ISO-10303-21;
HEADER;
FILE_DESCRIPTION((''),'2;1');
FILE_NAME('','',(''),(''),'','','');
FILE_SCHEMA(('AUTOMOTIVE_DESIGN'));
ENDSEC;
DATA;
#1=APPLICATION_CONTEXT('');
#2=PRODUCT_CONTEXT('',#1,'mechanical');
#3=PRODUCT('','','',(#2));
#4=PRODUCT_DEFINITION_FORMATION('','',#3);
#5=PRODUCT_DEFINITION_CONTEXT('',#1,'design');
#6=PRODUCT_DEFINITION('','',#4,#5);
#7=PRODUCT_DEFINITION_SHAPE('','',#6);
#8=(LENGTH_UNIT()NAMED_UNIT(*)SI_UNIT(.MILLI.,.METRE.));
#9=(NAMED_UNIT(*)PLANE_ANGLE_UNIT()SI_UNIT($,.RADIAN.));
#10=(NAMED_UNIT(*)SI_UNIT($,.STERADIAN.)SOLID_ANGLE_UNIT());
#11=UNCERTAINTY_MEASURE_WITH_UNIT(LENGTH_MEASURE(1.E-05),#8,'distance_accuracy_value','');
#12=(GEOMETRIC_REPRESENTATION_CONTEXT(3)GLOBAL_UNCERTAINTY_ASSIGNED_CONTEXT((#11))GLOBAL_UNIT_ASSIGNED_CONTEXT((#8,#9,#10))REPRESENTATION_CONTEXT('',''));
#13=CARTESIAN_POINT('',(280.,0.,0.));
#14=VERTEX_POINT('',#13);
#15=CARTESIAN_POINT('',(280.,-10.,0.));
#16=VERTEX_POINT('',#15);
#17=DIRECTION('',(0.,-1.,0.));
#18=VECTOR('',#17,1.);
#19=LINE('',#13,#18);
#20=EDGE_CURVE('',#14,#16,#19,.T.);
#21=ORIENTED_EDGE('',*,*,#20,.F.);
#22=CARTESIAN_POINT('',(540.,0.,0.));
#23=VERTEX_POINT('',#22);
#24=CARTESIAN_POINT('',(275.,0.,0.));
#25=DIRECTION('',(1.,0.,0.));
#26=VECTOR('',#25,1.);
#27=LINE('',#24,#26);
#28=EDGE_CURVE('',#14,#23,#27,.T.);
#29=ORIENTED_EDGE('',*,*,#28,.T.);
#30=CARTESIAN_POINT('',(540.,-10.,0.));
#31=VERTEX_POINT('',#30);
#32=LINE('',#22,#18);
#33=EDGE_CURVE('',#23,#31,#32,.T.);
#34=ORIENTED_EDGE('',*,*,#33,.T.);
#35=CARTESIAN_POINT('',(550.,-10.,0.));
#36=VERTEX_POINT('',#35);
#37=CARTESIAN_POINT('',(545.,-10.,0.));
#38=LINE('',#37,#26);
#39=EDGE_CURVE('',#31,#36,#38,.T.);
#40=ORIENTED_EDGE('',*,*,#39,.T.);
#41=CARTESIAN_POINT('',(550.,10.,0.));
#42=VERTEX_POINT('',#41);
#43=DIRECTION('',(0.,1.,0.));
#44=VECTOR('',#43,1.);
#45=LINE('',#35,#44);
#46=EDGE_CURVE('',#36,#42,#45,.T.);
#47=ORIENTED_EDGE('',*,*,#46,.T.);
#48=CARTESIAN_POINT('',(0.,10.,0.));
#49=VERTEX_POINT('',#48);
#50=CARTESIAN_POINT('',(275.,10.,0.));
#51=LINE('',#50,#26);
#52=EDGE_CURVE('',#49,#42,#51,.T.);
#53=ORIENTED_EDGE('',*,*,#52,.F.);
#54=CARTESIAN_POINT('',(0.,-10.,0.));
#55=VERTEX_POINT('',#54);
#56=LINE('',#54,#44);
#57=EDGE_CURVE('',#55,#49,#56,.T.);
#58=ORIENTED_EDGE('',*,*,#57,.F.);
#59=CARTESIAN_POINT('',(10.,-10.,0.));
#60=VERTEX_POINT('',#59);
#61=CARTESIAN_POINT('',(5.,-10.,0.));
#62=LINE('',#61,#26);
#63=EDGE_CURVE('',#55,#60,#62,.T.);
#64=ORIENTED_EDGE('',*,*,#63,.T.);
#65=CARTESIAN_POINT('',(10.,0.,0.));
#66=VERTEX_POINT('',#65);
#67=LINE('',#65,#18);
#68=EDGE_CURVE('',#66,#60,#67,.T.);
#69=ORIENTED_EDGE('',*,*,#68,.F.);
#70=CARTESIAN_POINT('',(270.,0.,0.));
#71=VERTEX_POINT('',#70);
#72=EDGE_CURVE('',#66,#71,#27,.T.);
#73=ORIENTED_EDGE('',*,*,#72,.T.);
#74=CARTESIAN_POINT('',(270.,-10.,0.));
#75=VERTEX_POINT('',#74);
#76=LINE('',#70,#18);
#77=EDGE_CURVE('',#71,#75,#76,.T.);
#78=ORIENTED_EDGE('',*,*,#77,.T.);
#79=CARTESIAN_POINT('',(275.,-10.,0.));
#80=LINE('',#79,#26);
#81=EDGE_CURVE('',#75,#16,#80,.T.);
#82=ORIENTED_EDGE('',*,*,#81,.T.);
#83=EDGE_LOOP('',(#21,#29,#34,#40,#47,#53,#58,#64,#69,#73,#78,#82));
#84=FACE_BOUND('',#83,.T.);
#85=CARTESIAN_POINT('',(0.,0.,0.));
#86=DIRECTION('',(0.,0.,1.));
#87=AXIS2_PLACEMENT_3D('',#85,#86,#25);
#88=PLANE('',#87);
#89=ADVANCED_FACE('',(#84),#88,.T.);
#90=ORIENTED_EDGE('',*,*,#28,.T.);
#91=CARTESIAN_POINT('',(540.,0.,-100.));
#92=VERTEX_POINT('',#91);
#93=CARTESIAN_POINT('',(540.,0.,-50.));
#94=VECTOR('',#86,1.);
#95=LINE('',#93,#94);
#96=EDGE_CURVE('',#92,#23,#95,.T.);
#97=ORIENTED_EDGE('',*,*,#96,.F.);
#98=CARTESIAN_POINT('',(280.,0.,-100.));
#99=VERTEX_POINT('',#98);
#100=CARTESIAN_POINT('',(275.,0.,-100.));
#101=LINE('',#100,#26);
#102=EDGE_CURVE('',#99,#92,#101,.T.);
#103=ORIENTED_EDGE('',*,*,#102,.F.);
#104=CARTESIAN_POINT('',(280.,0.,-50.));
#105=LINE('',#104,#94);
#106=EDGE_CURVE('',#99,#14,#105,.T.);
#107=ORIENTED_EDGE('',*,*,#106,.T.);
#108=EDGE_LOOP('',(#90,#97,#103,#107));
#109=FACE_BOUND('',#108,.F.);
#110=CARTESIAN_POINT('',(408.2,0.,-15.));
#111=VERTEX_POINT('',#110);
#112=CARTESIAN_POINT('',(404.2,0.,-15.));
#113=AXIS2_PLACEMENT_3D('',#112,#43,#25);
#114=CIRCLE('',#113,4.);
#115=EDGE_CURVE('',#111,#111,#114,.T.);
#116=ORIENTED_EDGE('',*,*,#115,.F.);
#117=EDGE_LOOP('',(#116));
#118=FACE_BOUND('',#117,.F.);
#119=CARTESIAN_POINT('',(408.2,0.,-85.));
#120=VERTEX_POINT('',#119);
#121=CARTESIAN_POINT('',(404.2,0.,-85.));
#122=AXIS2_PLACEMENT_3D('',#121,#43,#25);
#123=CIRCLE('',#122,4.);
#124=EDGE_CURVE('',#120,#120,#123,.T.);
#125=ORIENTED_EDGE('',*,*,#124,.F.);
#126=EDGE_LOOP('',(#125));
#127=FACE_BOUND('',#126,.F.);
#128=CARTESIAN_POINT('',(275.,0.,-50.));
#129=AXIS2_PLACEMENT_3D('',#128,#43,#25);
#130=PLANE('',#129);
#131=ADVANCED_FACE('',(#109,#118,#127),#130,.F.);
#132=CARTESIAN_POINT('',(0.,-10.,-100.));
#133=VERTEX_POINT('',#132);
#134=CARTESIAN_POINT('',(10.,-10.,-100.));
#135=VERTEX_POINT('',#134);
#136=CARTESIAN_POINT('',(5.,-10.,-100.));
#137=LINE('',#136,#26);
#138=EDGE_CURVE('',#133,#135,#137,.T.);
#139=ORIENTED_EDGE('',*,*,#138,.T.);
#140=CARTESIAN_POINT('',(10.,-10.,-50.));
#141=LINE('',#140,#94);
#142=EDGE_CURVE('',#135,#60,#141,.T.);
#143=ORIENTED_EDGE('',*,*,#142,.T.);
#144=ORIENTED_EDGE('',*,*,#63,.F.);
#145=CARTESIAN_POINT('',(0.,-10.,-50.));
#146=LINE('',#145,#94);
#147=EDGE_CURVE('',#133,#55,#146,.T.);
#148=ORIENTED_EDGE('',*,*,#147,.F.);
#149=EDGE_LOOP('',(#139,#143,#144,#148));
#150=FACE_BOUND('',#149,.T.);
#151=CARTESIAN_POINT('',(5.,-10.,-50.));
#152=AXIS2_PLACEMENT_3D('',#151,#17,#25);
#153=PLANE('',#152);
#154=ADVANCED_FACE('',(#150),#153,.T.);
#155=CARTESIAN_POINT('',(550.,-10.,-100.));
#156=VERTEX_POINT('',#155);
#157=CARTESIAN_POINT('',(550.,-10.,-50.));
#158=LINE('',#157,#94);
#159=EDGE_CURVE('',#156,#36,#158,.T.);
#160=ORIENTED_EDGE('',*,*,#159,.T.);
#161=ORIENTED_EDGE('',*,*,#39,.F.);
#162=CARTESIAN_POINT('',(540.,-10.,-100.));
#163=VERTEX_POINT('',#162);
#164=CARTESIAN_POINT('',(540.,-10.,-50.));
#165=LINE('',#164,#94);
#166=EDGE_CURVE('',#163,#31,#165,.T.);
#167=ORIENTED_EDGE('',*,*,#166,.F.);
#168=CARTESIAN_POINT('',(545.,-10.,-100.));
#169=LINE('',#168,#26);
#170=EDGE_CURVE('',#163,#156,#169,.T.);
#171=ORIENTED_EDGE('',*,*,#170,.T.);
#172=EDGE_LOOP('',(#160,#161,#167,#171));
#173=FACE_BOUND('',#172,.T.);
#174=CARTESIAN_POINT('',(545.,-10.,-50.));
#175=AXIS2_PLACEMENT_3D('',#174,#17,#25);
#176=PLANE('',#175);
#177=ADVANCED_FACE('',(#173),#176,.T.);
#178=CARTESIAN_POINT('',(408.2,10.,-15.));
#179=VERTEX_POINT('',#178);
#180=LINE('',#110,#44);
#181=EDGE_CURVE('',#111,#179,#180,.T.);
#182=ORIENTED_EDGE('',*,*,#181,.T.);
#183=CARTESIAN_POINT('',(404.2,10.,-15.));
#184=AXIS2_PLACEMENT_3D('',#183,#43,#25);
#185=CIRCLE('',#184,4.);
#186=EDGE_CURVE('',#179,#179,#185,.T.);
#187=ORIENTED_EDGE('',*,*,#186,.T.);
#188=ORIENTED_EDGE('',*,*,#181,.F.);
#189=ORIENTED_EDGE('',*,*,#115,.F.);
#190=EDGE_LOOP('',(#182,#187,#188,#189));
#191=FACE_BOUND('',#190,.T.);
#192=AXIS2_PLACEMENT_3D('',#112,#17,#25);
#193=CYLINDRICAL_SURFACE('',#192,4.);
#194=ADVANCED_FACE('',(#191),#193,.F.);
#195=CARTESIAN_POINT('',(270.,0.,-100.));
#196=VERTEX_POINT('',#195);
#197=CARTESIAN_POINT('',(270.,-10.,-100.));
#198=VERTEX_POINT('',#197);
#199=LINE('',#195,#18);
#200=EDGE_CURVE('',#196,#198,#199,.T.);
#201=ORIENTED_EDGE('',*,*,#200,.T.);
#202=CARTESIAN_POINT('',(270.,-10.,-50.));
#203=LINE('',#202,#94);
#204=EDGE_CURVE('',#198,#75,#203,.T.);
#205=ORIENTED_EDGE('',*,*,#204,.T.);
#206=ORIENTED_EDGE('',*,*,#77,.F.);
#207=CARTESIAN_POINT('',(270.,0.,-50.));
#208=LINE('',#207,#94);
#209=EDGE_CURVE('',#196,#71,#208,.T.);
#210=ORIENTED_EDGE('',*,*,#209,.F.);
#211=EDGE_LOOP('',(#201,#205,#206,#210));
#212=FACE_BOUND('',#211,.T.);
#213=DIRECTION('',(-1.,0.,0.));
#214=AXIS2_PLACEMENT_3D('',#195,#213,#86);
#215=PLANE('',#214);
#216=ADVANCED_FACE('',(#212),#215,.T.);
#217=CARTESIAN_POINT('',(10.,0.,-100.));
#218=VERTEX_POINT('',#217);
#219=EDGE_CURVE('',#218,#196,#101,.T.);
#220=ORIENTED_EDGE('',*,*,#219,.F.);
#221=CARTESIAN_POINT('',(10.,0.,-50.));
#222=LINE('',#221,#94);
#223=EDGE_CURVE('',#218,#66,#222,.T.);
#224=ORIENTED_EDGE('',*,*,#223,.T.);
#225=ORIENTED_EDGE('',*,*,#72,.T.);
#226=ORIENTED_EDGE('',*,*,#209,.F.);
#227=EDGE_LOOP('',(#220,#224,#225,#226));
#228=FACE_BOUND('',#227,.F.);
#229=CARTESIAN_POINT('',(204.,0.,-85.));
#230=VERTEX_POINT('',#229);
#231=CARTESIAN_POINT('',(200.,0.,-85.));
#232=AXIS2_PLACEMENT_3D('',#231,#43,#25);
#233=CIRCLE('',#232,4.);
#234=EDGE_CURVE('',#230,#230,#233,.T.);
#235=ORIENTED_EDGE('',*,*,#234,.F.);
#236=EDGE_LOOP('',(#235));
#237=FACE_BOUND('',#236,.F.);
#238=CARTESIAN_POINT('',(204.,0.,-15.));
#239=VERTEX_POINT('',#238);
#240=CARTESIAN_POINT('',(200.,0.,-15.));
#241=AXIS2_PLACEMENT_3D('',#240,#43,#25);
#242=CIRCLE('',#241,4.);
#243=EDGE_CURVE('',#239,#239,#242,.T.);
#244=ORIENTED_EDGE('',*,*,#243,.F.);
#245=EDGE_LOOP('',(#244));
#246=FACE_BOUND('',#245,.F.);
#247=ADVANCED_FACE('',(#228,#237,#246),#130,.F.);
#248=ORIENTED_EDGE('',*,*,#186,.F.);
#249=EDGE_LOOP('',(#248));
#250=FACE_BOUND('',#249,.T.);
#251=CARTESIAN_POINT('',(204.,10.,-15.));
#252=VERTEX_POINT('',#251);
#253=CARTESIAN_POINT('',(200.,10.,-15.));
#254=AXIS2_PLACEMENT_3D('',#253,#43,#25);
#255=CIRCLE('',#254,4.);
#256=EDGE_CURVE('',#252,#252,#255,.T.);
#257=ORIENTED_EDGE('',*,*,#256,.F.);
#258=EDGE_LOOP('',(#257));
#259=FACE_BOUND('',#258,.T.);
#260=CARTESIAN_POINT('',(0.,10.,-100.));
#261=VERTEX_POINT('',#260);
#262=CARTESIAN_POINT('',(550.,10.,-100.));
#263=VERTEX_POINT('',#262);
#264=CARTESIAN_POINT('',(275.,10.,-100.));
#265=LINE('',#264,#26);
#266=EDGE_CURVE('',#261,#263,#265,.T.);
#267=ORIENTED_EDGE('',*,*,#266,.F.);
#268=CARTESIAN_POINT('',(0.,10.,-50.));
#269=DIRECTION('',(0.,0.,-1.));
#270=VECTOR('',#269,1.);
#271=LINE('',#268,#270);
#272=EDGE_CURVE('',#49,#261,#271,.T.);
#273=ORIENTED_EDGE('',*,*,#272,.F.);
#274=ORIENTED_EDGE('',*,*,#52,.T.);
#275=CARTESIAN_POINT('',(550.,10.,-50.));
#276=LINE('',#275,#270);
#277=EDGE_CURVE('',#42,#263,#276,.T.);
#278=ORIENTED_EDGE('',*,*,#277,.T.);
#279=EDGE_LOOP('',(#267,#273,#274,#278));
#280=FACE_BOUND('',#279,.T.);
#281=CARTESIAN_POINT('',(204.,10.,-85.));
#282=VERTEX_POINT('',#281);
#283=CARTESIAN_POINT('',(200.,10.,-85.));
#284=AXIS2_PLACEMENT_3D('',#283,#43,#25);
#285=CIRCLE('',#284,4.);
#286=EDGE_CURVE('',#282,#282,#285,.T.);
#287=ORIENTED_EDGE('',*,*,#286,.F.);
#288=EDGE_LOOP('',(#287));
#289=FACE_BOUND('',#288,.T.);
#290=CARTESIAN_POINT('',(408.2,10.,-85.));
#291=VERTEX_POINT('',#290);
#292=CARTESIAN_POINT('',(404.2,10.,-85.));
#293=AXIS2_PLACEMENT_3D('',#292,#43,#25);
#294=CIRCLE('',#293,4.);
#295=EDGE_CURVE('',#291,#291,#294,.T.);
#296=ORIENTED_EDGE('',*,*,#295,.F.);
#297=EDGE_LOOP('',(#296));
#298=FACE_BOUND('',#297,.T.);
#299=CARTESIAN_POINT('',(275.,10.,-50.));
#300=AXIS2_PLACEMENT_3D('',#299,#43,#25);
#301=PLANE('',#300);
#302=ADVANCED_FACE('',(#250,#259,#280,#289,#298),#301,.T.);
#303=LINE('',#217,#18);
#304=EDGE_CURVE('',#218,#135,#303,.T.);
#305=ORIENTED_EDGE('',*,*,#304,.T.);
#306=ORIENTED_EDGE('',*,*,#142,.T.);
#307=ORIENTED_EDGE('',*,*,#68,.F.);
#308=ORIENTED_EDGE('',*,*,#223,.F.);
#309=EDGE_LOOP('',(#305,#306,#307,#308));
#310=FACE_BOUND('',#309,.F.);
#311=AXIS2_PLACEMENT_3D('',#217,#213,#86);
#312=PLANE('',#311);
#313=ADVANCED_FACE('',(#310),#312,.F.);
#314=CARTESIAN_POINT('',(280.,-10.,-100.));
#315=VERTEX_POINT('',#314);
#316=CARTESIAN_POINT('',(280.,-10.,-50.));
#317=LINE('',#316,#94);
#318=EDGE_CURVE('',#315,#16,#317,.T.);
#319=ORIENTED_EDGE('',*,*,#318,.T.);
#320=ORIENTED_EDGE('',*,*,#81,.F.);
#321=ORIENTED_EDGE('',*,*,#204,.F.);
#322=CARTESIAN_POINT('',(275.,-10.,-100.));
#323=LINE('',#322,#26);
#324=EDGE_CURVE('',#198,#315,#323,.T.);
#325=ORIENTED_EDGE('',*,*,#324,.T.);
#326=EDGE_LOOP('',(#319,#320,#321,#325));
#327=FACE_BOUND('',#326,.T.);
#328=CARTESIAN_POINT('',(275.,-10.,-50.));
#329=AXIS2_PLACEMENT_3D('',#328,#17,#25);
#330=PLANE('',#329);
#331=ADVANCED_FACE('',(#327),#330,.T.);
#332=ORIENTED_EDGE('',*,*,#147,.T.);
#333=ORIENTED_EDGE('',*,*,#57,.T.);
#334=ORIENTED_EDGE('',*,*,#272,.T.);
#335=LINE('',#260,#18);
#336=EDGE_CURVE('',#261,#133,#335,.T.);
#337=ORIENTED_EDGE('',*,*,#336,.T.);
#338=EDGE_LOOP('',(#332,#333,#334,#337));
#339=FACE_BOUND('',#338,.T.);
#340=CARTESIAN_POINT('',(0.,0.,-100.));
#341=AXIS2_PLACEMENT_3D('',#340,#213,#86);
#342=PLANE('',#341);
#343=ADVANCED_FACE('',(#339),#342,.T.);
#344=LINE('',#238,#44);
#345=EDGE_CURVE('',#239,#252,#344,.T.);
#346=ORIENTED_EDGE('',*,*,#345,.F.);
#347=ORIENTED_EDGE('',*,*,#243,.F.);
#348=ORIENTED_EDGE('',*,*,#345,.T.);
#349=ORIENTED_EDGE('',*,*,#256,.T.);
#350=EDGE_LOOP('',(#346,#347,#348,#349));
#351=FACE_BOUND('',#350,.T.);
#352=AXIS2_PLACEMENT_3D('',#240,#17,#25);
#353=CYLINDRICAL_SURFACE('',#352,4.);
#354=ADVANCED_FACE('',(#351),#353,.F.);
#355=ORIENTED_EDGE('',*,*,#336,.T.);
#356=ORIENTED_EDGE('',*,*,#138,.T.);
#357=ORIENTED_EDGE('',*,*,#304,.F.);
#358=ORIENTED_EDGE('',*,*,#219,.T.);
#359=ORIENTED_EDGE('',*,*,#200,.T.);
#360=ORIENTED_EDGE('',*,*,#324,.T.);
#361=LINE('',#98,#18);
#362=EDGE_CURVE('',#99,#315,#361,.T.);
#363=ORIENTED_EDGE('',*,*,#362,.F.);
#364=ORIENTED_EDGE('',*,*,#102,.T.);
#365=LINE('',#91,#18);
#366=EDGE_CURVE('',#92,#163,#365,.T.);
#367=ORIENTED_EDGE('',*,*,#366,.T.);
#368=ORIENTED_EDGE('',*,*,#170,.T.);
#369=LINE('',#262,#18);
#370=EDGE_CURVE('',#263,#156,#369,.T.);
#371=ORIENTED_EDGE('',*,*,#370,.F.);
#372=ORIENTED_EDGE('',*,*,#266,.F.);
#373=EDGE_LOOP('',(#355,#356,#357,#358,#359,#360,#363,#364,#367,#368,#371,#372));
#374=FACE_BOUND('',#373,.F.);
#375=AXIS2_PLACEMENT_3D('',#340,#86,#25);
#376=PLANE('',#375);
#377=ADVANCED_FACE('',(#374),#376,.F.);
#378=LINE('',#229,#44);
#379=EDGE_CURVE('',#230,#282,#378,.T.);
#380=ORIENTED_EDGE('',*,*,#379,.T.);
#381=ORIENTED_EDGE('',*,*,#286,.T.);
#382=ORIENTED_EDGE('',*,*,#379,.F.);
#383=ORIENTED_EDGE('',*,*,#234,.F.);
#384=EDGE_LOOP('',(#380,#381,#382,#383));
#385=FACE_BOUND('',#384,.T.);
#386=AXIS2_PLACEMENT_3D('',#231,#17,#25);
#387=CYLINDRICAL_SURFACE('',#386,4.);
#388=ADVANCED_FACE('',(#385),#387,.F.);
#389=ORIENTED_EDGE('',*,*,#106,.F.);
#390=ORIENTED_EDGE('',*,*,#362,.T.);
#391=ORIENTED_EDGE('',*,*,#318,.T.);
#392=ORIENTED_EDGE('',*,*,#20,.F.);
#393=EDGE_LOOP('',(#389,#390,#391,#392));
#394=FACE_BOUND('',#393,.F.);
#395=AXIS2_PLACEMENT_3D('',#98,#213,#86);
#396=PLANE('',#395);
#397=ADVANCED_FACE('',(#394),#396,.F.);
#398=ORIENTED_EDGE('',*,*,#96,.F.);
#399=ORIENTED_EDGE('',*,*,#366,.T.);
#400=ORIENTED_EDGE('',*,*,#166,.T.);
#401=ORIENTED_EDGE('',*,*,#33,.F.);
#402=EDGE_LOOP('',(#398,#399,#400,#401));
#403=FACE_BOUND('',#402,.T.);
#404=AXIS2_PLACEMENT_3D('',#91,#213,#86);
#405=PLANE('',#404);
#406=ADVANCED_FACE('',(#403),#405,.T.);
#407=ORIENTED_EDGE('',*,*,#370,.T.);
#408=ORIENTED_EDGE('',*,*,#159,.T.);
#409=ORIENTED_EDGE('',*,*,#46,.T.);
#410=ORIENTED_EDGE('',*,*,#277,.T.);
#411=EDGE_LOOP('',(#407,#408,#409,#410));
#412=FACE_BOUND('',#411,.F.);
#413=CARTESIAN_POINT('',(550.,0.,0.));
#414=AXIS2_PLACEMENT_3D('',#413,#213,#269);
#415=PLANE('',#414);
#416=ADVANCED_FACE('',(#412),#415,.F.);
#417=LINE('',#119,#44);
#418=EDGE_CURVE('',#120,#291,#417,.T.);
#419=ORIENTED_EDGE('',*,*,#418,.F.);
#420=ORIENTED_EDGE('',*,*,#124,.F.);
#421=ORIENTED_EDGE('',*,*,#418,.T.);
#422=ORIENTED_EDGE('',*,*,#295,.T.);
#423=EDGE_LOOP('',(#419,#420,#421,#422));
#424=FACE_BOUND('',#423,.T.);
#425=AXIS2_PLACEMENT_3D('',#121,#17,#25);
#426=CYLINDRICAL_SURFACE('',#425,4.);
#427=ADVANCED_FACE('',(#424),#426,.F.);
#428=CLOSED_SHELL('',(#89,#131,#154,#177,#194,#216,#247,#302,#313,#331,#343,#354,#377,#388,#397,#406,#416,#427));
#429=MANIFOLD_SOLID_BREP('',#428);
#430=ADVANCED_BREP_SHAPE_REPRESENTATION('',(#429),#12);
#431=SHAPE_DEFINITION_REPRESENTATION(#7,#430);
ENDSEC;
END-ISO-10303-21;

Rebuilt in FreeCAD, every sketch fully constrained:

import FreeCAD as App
import Part
import Sketcher

V = App.Vector

doc = App.newDocument("Part")
body = doc.addObject("PartDesign::Body", "Body")

# Sketch on XZ plane
sketch1 = body.newObject("Sketcher::SketchObject", "Sketch")
sketch1.AttachmentSupport = (doc.getObject("XZ_Plane"), [""])
sketch1.MapMode = "FlatFace"
sketch1.addGeometry(Part.LineSegment(V(0, -100, 0), V(0, 0, 0)), False)
sketch1.addGeometry(Part.LineSegment(V(0, 0, 0), V(550, 0, 0)), False)
sketch1.addGeometry(Part.LineSegment(V(550, 0, 0), V(550, -100, 0)), False)
sketch1.addGeometry(Part.LineSegment(V(550, -100, 0), V(0, -100, 0)), False)
sketch1.addGeometry(Part.Circle(V(200, -15, 0), V(0, 0, 1), 4), False)
sketch1.addGeometry(Part.Circle(V(404.2, -15, 0), V(0, 0, 1), 4), False)
sketch1.addGeometry(Part.Circle(V(200, -85, 0), V(0, 0, 1), 4), False)
sketch1.addGeometry(Part.Circle(V(404.2, -85, 0), V(0, 0, 1), 4), False)
sketch1.addConstraint(Sketcher.Constraint("Coincident", 0, 2, 1, 1))
sketch1.addConstraint(Sketcher.Constraint("Coincident", 1, 2, 2, 1))
sketch1.addConstraint(Sketcher.Constraint("Coincident", 2, 2, 3, 1))
sketch1.addConstraint(Sketcher.Constraint("Coincident", 3, 2, 0, 1))
sketch1.addConstraint(Sketcher.Constraint("Vertical", 0))
sketch1.addConstraint(Sketcher.Constraint("Horizontal", 1))
sketch1.addConstraint(Sketcher.Constraint("Vertical", 2))
sketch1.addConstraint(Sketcher.Constraint("Horizontal", 3))
sketch1.addConstraint(Sketcher.Constraint("Coincident", 0, 2, -1, 1))
sketch1.addConstraint(Sketcher.Constraint("Equal", 4, 5))
sketch1.addConstraint(Sketcher.Constraint("Equal", 5, 6))
sketch1.addConstraint(Sketcher.Constraint("Equal", 6, 7))
sketch1.addConstraint(Sketcher.Constraint("Horizontal", 4, 3, 5, 3))
sketch1.addConstraint(Sketcher.Constraint("Horizontal", 6, 3, 7, 3))
sketch1.addConstraint(Sketcher.Constraint("Vertical", 4, 3, 6, 3))
sketch1.addConstraint(Sketcher.Constraint("Vertical", 5, 3, 7, 3))
sketch1.addConstraint(Sketcher.Constraint("Diameter", 4, 8.0))
sketch1.addConstraint(Sketcher.Constraint("DistanceX", 1, 1, 1, 2, 550.0))
sketch1.addConstraint(Sketcher.Constraint("DistanceY", 0, 1, 0, 2, 100.0))
sketch1.addConstraint(Sketcher.Constraint("DistanceX", -1, 1, 4, 3, 200.0))
sketch1.addConstraint(Sketcher.Constraint("DistanceY", 4, 3, -1, 1, 15.0))
sketch1.addConstraint(Sketcher.Constraint("DistanceY", 6, 3, -1, 1, 85.0))
sketch1.addConstraint(Sketcher.Constraint("DistanceX", -1, 1, 5, 3, 404.2))
pad1 = body.newObject("PartDesign::Pad", "Pad")
pad1.Profile = sketch1
pad1.Length = 10
pad1.Reversed = True

# Sketch on XZ plane
sketch2 = body.newObject("Sketcher::SketchObject", "Sketch001")
sketch2.AttachmentSupport = (doc.getObject("XZ_Plane"), [""])
sketch2.MapMode = "FlatFace"
sketch2.addGeometry(Part.LineSegment(V(0, 0, 0), V(0, -100, 0)), False)
sketch2.addGeometry(Part.LineSegment(V(0, -100, 0), V(10, -100, 0)), False)
sketch2.addGeometry(Part.LineSegment(V(10, -100, 0), V(10, 0, 0)), False)
sketch2.addGeometry(Part.LineSegment(V(10, 0, 0), V(0, 0, 0)), False)
sketch2.addGeometry(Part.LineSegment(V(540, 0, 0), V(540, -100, 0)), False)
sketch2.addGeometry(Part.LineSegment(V(540, -100, 0), V(550, -100, 0)), False)
sketch2.addGeometry(Part.LineSegment(V(550, -100, 0), V(550, 0, 0)), False)
sketch2.addGeometry(Part.LineSegment(V(550, 0, 0), V(540, 0, 0)), False)
sketch2.addGeometry(Part.LineSegment(V(270, 0, 0), V(270, -100, 0)), False)
sketch2.addGeometry(Part.LineSegment(V(270, -100, 0), V(280, -100, 0)), False)
sketch2.addGeometry(Part.LineSegment(V(280, -100, 0), V(280, 0, 0)), False)
sketch2.addGeometry(Part.LineSegment(V(280, 0, 0), V(270, 0, 0)), False)
sketch2.addConstraint(Sketcher.Constraint("Coincident", 0, 2, 1, 1))
sketch2.addConstraint(Sketcher.Constraint("Coincident", 1, 2, 2, 1))
sketch2.addConstraint(Sketcher.Constraint("Coincident", 2, 2, 3, 1))
sketch2.addConstraint(Sketcher.Constraint("Coincident", 3, 2, 0, 1))
sketch2.addConstraint(Sketcher.Constraint("Coincident", 4, 2, 5, 1))
sketch2.addConstraint(Sketcher.Constraint("Coincident", 5, 2, 6, 1))
sketch2.addConstraint(Sketcher.Constraint("Coincident", 6, 2, 7, 1))
sketch2.addConstraint(Sketcher.Constraint("Coincident", 7, 2, 4, 1))
sketch2.addConstraint(Sketcher.Constraint("Coincident", 8, 2, 9, 1))
sketch2.addConstraint(Sketcher.Constraint("Coincident", 9, 2, 10, 1))
sketch2.addConstraint(Sketcher.Constraint("Coincident", 10, 2, 11, 1))
sketch2.addConstraint(Sketcher.Constraint("Coincident", 11, 2, 8, 1))
sketch2.addConstraint(Sketcher.Constraint("Vertical", 0))
sketch2.addConstraint(Sketcher.Constraint("Horizontal", 1))
sketch2.addConstraint(Sketcher.Constraint("Vertical", 2))
sketch2.addConstraint(Sketcher.Constraint("Horizontal", 3))
sketch2.addConstraint(Sketcher.Constraint("Vertical", 4))
sketch2.addConstraint(Sketcher.Constraint("Horizontal", 5))
sketch2.addConstraint(Sketcher.Constraint("Vertical", 6))
sketch2.addConstraint(Sketcher.Constraint("Horizontal", 7))
sketch2.addConstraint(Sketcher.Constraint("Vertical", 8))
sketch2.addConstraint(Sketcher.Constraint("Horizontal", 9))
sketch2.addConstraint(Sketcher.Constraint("Vertical", 10))
sketch2.addConstraint(Sketcher.Constraint("Horizontal", 11))
sketch2.addConstraint(Sketcher.Constraint("Coincident", 3, 2, -1, 1))
sketch2.addConstraint(Sketcher.Constraint("PointOnObject", 6, 2, -1))
sketch2.addConstraint(Sketcher.Constraint("PointOnObject", 10, 2, -1))
sketch2.addConstraint(Sketcher.Constraint("Horizontal", 1, 2, 4, 2))
sketch2.addConstraint(Sketcher.Constraint("Horizontal", 5, 2, 8, 2))
sketch2.addConstraint(Sketcher.Constraint("Equal", 3, 5))
sketch2.addConstraint(Sketcher.Constraint("Equal", 7, 9))
sketch2.addConstraint(Sketcher.Constraint("DistanceX", 1, 1, 1, 2, 10.0))
sketch2.addConstraint(Sketcher.Constraint("DistanceY", 0, 2, 0, 1, 100.0))
sketch2.addConstraint(Sketcher.Constraint("DistanceX", -1, 1, 4, 2, 540.0))
sketch2.addConstraint(Sketcher.Constraint("DistanceX", -1, 1, 8, 2, 270.0))
pad2 = body.newObject("PartDesign::Pad", "Pad001")
pad2.Profile = sketch2
pad2.Length = 10

doc.recompute()
